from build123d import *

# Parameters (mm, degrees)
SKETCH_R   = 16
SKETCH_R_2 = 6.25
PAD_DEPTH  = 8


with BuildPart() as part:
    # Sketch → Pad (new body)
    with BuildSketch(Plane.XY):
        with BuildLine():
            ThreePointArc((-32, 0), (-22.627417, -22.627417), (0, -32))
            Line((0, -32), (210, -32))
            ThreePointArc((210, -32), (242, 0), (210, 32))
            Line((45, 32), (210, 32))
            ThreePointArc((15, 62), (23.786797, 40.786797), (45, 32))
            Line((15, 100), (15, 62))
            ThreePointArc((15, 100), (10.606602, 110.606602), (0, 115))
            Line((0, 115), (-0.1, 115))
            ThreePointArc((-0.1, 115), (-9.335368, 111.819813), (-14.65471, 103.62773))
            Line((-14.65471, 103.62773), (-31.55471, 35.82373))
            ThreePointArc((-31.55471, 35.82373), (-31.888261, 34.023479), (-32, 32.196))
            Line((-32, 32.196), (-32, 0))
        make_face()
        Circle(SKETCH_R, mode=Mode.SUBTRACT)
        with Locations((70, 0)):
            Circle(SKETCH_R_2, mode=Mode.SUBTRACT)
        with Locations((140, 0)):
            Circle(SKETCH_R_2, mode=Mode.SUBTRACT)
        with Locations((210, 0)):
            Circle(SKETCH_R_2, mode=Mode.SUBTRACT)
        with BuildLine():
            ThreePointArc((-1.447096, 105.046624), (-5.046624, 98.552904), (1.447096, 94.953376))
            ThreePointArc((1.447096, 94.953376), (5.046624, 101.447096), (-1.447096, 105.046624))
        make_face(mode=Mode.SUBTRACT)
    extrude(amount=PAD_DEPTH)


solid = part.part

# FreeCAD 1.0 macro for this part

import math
import FreeCAD as App
import Part
import Sketcher
from FreeCAD import Vector

doc = App.newDocument("Part")
body = doc.addObject("PartDesign::Body", "Body")

sketch1 = body.newObject("Sketcher::SketchObject", "Sketch")
sketch1.AttachmentSupport = (doc.getObject("XY_Plane"), [""])
sketch1.MapMode = "FlatFace"
sketch1.addGeometry([
    Part.ArcOfCircle(Part.Circle(Vector(0, 0, 0), Vector(0, 0, 1), 32), math.radians(180), math.radians(270)),
    Part.LineSegment(Vector(0, -32, 0), Vector(210, -32, 0)),
    Part.ArcOfCircle(Part.Circle(Vector(210, 0, 0), Vector(0, 0, 1), 32), math.radians(-90), math.radians(90)),
    Part.LineSegment(Vector(210, 32, 0), Vector(45, 32, 0)),
    Part.ArcOfCircle(Part.Circle(Vector(45, 62, 0), Vector(0, 0, 1), 30), math.radians(-180), math.radians(-90)),
    Part.LineSegment(Vector(15, 62, 0), Vector(15, 100, 0)),
    Part.ArcOfCircle(Part.Circle(Vector(0, 100, 0), Vector(0, 0, 1), 15), math.radians(0), math.radians(90)),
    Part.LineSegment(Vector(0, 115, 0), Vector(-0.1, 115, 0)),
    Part.ArcOfCircle(Part.Circle(Vector(-0.1, 100, 0), Vector(0, 0, 1), 15), math.radians(90), math.radians(166)),
    Part.LineSegment(Vector(-14.65, 103.63, 0), Vector(-31.55, 35.82, 0)),
    Part.ArcOfCircle(Part.Circle(Vector(-17, 32.2, 0), Vector(0, 0, 1), 15), math.radians(166), math.radians(180)),
    Part.LineSegment(Vector(-32, 32.2, 0), Vector(-32, 0, 0)),
    Part.Circle(Vector(0, 0, 0), Vector(0, 0, 1), 16),
    Part.Circle(Vector(70, 0, 0), Vector(0, 0, 1), 6.25),
    Part.Circle(Vector(140, 0, 0), Vector(0, 0, 1), 6.25),
    Part.Circle(Vector(210, 0, 0), Vector(0, 0, 1), 6.25),
    Part.Circle(Vector(0, 100, 0), Vector(0, 0, 1), 5.25),
], False)
sketch1.addConstraint([
    Sketcher.Constraint("Tangent", 0, 2, 1, 1),
    Sketcher.Constraint("Tangent", 1, 2, 2, 1),
    Sketcher.Constraint("Tangent", 2, 2, 3, 1),
    Sketcher.Constraint("Tangent", 3, 2, 4, 2),
    Sketcher.Constraint("Tangent", 4, 1, 5, 1),
    Sketcher.Constraint("Tangent", 5, 2, 6, 1),
    Sketcher.Constraint("Tangent", 6, 2, 7, 1),
    Sketcher.Constraint("Tangent", 7, 2, 8, 1),
    Sketcher.Constraint("Tangent", 8, 2, 9, 1),
    Sketcher.Constraint("Tangent", 9, 2, 10, 1),
    Sketcher.Constraint("Tangent", 10, 2, 11, 1),
    Sketcher.Constraint("Tangent", 11, 2, 0, 1),
    Sketcher.Constraint("Horizontal", 1),
    Sketcher.Constraint("Horizontal", 3),
    Sketcher.Constraint("Vertical", 5),
    Sketcher.Constraint("Horizontal", 7),
    Sketcher.Constraint("Vertical", 11),
    Sketcher.Constraint("Coincident", 0, 3, -1, 1),
    Sketcher.Constraint("Coincident", 12, 3, -1, 1),
    Sketcher.Constraint("Coincident", 15, 3, 2, 3),
    Sketcher.Constraint("Coincident", 16, 3, 6, 3),
    Sketcher.Constraint("Equal", 0, 2),
    Sketcher.Constraint("Equal", 6, 8),
    Sketcher.Constraint("Equal", 13, 14),
    Sketcher.Constraint("Equal", 14, 15),
    Sketcher.Constraint("PointOnObject", 6, 3, -2),
    Sketcher.Constraint("PointOnObject", 13, 3, -1),
    Sketcher.Constraint("PointOnObject", 14, 3, -1),
    Sketcher.Constraint("Diameter", 12, 32.0),
    Sketcher.Constraint("Radius", 0, 32.0),
    Sketcher.Constraint("Radius", 4, 30.000001),
    Sketcher.Constraint("Radius", 6, 14.999999),
    Sketcher.Constraint("Diameter", 13, 12.5),
    Sketcher.Constraint("Diameter", 16, 10.5),
    Sketcher.Constraint("DistanceX", 1, 1, 1, 2, 210.0),
    Sketcher.Constraint("DistanceY", 5, 1, 5, 2, 38.0),
    Sketcher.Constraint("DistanceX", 7, 2, 7, 1, 0.1),
    Sketcher.Constraint("DistanceX", -1, 1, 13, 3, 70.0),
    Sketcher.Constraint("DistanceX", -1, 1, 14, 3, 140.0),
    Sketcher.Constraint("DistanceX", 9, 2, 8, 2, 16.9),
    Sketcher.Constraint("DistanceY", 11, 2, 11, 1, 32.196),
])
pad1 = body.newObject("PartDesign::Pad", "Pad")
pad1.Profile = sketch1
pad1.Length = 8

doc.recompute()
